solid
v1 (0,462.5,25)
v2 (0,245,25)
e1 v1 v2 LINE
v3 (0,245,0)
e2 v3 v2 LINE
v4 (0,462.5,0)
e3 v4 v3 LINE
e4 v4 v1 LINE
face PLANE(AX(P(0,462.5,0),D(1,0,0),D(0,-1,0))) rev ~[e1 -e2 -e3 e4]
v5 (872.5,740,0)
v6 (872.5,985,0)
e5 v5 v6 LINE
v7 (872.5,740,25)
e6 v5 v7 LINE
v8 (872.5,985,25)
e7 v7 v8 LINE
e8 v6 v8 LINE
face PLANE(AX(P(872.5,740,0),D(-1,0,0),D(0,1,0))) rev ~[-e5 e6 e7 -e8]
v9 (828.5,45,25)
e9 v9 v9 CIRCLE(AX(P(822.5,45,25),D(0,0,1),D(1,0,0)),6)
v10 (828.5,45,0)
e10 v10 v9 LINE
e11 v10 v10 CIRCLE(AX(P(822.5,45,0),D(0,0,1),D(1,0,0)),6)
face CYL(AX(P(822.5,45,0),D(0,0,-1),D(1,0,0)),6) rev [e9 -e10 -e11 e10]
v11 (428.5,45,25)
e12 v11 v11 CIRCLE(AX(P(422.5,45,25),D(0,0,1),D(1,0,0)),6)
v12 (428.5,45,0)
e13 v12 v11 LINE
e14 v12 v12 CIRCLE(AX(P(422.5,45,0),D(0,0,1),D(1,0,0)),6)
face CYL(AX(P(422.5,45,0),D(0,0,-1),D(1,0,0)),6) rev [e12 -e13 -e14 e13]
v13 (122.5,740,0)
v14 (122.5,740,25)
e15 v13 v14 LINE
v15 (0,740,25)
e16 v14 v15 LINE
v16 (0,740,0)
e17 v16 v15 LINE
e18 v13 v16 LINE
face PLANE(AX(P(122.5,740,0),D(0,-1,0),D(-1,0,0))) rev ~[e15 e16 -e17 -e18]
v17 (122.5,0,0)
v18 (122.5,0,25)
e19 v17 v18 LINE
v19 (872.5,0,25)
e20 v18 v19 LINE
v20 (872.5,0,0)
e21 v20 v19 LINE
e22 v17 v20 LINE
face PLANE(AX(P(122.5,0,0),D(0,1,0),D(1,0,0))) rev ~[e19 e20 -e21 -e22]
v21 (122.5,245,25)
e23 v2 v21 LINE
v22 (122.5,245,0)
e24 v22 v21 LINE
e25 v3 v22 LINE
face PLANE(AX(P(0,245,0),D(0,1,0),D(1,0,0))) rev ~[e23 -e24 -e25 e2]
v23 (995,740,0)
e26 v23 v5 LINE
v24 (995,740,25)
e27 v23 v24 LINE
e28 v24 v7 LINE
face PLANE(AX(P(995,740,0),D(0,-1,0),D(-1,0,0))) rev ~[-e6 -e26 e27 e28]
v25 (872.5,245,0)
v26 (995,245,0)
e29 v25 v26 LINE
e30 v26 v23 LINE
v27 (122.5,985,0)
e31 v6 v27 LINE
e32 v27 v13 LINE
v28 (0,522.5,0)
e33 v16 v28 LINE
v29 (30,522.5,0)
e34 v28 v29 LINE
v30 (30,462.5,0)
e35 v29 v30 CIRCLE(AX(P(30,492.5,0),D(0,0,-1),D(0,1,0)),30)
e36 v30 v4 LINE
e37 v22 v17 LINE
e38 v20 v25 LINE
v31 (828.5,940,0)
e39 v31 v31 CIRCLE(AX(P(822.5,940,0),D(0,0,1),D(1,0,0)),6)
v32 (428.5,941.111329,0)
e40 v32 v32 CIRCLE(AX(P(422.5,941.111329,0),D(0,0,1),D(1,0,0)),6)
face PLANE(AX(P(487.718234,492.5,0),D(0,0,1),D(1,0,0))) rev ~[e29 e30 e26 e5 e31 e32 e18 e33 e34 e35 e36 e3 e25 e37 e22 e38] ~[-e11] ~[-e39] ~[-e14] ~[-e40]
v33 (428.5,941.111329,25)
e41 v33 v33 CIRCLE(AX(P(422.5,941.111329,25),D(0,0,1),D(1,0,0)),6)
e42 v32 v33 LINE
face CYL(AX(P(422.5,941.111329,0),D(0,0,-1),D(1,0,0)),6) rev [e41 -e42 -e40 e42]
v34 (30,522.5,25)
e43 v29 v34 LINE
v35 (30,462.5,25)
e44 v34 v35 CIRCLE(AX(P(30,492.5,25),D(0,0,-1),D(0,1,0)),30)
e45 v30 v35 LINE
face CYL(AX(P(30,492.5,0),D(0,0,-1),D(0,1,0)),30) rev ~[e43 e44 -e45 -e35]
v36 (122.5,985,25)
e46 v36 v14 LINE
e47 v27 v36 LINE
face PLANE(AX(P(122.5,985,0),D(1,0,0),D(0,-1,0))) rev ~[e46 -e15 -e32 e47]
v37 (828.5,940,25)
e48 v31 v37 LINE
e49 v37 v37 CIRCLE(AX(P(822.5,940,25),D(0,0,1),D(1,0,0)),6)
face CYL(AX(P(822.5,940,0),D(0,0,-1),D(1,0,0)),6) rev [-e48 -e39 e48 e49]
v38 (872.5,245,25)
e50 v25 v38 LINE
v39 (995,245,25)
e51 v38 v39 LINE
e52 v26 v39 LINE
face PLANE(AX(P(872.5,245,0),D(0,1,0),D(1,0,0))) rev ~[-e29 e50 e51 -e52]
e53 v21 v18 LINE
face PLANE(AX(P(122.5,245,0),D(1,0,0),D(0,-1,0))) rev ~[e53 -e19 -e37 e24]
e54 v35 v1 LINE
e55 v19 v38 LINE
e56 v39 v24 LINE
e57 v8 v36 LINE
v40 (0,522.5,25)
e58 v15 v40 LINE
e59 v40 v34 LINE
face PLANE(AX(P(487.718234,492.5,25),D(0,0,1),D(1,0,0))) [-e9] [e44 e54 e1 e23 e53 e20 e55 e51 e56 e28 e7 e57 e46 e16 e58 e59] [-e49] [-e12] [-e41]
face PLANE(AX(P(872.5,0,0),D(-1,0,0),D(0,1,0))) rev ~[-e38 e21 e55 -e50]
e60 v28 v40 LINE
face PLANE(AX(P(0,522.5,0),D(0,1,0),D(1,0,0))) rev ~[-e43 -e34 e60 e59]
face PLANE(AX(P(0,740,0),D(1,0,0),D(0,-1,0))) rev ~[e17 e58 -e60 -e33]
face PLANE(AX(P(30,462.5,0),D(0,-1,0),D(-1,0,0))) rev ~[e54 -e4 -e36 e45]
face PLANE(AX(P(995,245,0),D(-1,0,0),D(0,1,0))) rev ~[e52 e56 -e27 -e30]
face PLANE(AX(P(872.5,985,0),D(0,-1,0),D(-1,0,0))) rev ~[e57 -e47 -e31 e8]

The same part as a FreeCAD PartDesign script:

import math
import FreeCAD as App
import Part
import Sketcher

V = App.Vector

doc = App.newDocument("Part")
body = doc.addObject("PartDesign::Body", "Body")

# Sketch on XY plane
sketch1 = body.newObject("Sketcher::SketchObject", "Sketch")
sketch1.AttachmentSupport = (doc.getObject("XY_Plane"), [""])
sketch1.MapMode = "FlatFace"
sketch1.addGeometry([
    Part.LineSegment(V(122, 245, 0), V(122, 0, 0)),  # 0
    Part.LineSegment(V(122, 0, 0), V(872, 0, 0)),  # 1
    Part.LineSegment(V(872, 0, 0), V(872, 245, 0)),  # 2
    Part.LineSegment(V(872, 245, 0), V(995, 245, 0)),  # 3
    Part.LineSegment(V(995, 245, 0), V(995, 740, 0)),  # 4
    Part.LineSegment(V(995, 740, 0), V(872, 740, 0)),  # 5
    Part.LineSegment(V(872, 740, 0), V(872, 985, 0)),  # 6
    Part.LineSegment(V(872, 985, 0), V(122, 985, 0)),  # 7
    Part.LineSegment(V(122, 985, 0), V(122, 740, 0)),  # 8
    Part.LineSegment(V(122, 740, 0), V(0, 740, 0)),  # 9
    Part.LineSegment(V(0, 740, 0), V(0, 522, 0)),  # 10
    Part.LineSegment(V(0, 522, 0), V(30, 522, 0)),  # 11
    Part.ArcOfCircle(Part.Circle(V(30, 492, 0), V(0, 0, 1), 30), math.radians(-90), math.radians(90)),  # 12
    Part.LineSegment(V(30, 462, 0), V(0, 462, 0)),  # 13
    Part.LineSegment(V(0, 462, 0), V(0, 245, 0)),  # 14
    Part.LineSegment(V(0, 245, 0), V(122, 245, 0)),  # 15
    Part.Circle(V(422, 45, 0), V(0, 0, 1), 6),  # 16
    Part.Circle(V(822, 45, 0), V(0, 0, 1), 6),  # 17
    Part.Circle(V(422, 941, 0), V(0, 0, 1), 6),  # 18
    Part.Circle(V(822, 940, 0), V(0, 0, 1), 6),  # 19
], False)
sketch1.addConstraint([
    Sketcher.Constraint("Coincident", 0, 2, 1, 1),
    Sketcher.Constraint("Coincident", 1, 2, 2, 1),
    Sketcher.Constraint("Coincident", 2, 2, 3, 1),
    Sketcher.Constraint("Coincident", 3, 2, 4, 1),
    Sketcher.Constraint("Coincident", 4, 2, 5, 1),
    Sketcher.Constraint("Coincident", 5, 2, 6, 1),
    Sketcher.Constraint("Coincident", 6, 2, 7, 1),
    Sketcher.Constraint("Coincident", 7, 2, 8, 1),
    Sketcher.Constraint("Coincident", 8, 2, 9, 1),
    Sketcher.Constraint("Coincident", 9, 2, 10, 1),
    Sketcher.Constraint("Coincident", 10, 2, 11, 1),
    Sketcher.Constraint("Tangent", 11, 2, 12, 2),
    Sketcher.Constraint("Tangent", 12, 1, 13, 1),
    Sketcher.Constraint("Coincident", 13, 2, 14, 1),
    Sketcher.Constraint("Coincident", 14, 2, 15, 1),
    Sketcher.Constraint("Coincident", 15, 2, 0, 1),
    Sketcher.Constraint("Vertical", 0),
    Sketcher.Constraint("Horizontal", 1),
    Sketcher.Constraint("Vertical", 2),
    Sketcher.Constraint("Horizontal", 3),
    Sketcher.Constraint("Vertical", 4),
    Sketcher.Constraint("Horizontal", 5),
    Sketcher.Constraint("Vertical", 6),
    Sketcher.Constraint("Horizontal", 7),
    Sketcher.Constraint("Vertical", 8),
    Sketcher.Constraint("Horizontal", 9),
    Sketcher.Constraint("Vertical", 10),
    Sketcher.Constraint("Horizontal", 11),
    Sketcher.Constraint("Horizontal", 13),
    Sketcher.Constraint("Vertical", 14),
    Sketcher.Constraint("Horizontal", 15),
    Sketcher.Constraint("Equal", 16, 17),
    Sketcher.Constraint("Equal", 17, 18),
    Sketcher.Constraint("Equal", 18, 19),
    Sketcher.Constraint("PointOnObject", 0, 2, -1),
    Sketcher.Constraint("PointOnObject", 9, 2, -2),
    Sketcher.Constraint("PointOnObject", 13, 2, -2),
    Sketcher.Constraint("Horizontal", 16, 3, 17, 3),
    Sketcher.Constraint("Horizontal", 5, 2, 8, 2),
    Sketcher.Constraint("Horizontal", 3, 2, 14, 2),
    Sketcher.Constraint("Vertical", 16, 3, 18, 3),
    Sketcher.Constraint("Vertical", 17, 3, 19, 3),
    Sketcher.Constraint("Vertical", 2, 2, 5, 2),
    Sketcher.Constraint("Vertical", 0, 2, 7, 2),
    Sketcher.Constraint("Equal", 5, 9),
    Sketcher.Constraint("Equal", 2, 6),
    Sketcher.Constraint("Equal", 10, 14),
    Sketcher.Constraint("Diameter", 16, 12.0),
    Sketcher.Constraint("Radius", 12, 30.0),
    Sketcher.Constraint("DistanceX", 1, 1, 1, 2, 750.0),
    Sketcher.Constraint("DistanceX", 11, 1, 11, 2, 30.0),
    Sketcher.Constraint("DistanceY", 0, 2, 0, 1, 245.0),
    Sketcher.Constraint("DistanceY", 4, 1, 4, 2, 495.0),
    Sketcher.Constraint("DistanceX", 3, 1, 3, 2, 122.5),
    Sketcher.Constraint("DistanceY", -1, 1, 16, 3, 45.0),
    Sketcher.Constraint("DistanceY", -1, 1, 19, 3, 940.0),
    Sketcher.Constraint("DistanceX", 16, 3, 17, 3, 400.0),
    Sketcher.Constraint("DistanceX", 0, 2, 16, 3, 300.0),
    Sketcher.Constraint("DistanceY", -1, 1, 18, 3, 941.111329),
])
pad1 = body.newObject("PartDesign::Pad", "Pad")
pad1.Profile = sketch1
pad1.Length = 25

doc.recompute()
